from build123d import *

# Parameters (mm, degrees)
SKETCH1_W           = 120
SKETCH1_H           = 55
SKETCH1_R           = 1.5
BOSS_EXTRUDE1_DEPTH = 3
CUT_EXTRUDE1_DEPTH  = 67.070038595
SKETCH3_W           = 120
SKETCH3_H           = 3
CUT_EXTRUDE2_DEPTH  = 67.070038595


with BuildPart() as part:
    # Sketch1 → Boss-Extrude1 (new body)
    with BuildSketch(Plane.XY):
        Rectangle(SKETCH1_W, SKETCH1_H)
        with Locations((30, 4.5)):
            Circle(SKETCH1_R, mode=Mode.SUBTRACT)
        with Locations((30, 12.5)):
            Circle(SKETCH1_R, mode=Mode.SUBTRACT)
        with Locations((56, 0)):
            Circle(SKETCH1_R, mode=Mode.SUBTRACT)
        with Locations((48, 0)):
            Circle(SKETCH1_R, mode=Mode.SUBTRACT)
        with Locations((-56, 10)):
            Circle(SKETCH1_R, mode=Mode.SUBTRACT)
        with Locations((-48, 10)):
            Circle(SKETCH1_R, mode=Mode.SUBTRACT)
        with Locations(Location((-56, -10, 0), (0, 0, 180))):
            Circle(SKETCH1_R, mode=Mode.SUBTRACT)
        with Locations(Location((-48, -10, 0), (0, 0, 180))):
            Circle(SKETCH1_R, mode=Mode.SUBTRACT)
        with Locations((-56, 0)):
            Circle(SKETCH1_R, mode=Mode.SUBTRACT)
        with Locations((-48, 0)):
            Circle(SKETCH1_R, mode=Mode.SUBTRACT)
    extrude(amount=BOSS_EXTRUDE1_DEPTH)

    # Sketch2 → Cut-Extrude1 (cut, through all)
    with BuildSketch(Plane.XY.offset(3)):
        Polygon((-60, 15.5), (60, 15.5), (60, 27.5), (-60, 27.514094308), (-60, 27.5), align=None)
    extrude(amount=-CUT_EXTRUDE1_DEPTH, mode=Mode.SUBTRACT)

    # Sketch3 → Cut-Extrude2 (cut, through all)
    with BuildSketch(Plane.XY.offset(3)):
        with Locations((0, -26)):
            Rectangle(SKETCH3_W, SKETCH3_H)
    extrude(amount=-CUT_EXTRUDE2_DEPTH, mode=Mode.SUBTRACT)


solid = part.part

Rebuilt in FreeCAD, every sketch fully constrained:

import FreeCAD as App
import Part
import Sketcher
from FreeCAD import Vector


def add_polygon(sketch, points):
    """Adds a closed chain of lines whose ends are joined by coincident constraints."""
    first, n = sketch.GeometryCount, len(points)
    for a, b in zip(points, points[1:] + points[:1]):
        sketch.addGeometry(Part.LineSegment(App.Vector(*a, 0), App.Vector(*b, 0)), False)
    for i in range(n):
        sketch.addConstraint(Sketcher.Constraint("Coincident", first + i, 2, first + (i + 1) % n, 1))

doc = App.newDocument("Part")
body = doc.addObject("PartDesign::Body", "Body")

sketch1 = doc.addObject("Sketcher::SketchObject", "Sketch")
body.addObject(sketch1)
sketch1.AttachmentSupport = (doc.XY_Plane, [""])
sketch1.MapMode = "FlatFace"
add_polygon(sketch1, [(-60, 27.5), (-60, -27.5), (60, -27.5), (60, 27.5)])
sketch1.addGeometry(Part.Circle(Vector(-56, -10, 0), Vector(0, 0, 1), 1.5), False)
sketch1.addGeometry(Part.Circle(Vector(-48, -10, 0), Vector(0, 0, 1), 1.5), False)
sketch1.addGeometry(Part.Circle(Vector(-56, 0, 0), Vector(0, 0, 1), 1.5), False)
sketch1.addGeometry(Part.Circle(Vector(-48, 0, 0), Vector(0, 0, 1), 1.5), False)
sketch1.addGeometry(Part.Circle(Vector(48, 0, 0), Vector(0, 0, 1), 1.5), False)
sketch1.addGeometry(Part.Circle(Vector(56, 0, 0), Vector(0, 0, 1), 1.5), False)
sketch1.addGeometry(Part.Circle(Vector(-56, 10, 0), Vector(0, 0, 1), 1.5), False)
sketch1.addGeometry(Part.Circle(Vector(-48, 10, 0), Vector(0, 0, 1), 1.5), False)
sketch1.addGeometry(Part.Circle(Vector(30, 4.5, 0), Vector(0, 0, 1), 1.5), False)
sketch1.addGeometry(Part.Circle(Vector(30, 12.5, 0), Vector(0, 0, 1), 1.5), False)
sketch1.addConstraint([
    Sketcher.Constraint("Vertical", 0),
    Sketcher.Constraint("Horizontal", 1),
    Sketcher.Constraint("Vertical", 2),
    Sketcher.Constraint("Horizontal", 3),
    Sketcher.Constraint("Equal", 4, 5),
    Sketcher.Constraint("Equal", 5, 6),
    Sketcher.Constraint("Equal", 6, 7),
    Sketcher.Constraint("Equal", 7, 8),
    Sketcher.Constraint("Equal", 8, 9),
    Sketcher.Constraint("Equal", 9, 10),
    Sketcher.Constraint("Equal", 10, 11),
    Sketcher.Constraint("Equal", 11, 12),
    Sketcher.Constraint("Equal", 12, 13),
    Sketcher.Constraint("Symmetric", 7, 3, 8, 3, -1, 1),
    Sketcher.Constraint("Symmetric", 6, 3, 9, 3, -1, 1),
    Sketcher.Constraint("Symmetric", 0, 2, 2, 2, -1, 1),
    Sketcher.Constraint("Symmetric", 4, 3, 10, 3, -1),
    Sketcher.Constraint("Symmetric", 5, 3, 11, 3, -1),
    Sketcher.Constraint("PointOnObject", 6, 3, -1),
    Sketcher.Constraint("PointOnObject", 7, 3, -1),
    Sketcher.Constraint("Horizontal", 4, 3, 5, 3),
    Sketcher.Constraint("Vertical", 4, 3, 6, 3),
    Sketcher.Constraint("Vertical", 5, 3, 7, 3),
    Sketcher.Constraint("Vertical", 12, 3, 13, 3),
    Sketcher.Constraint("Diameter", 4, 3.0),
    Sketcher.Constraint("DistanceX", 1, 1, 1, 2, 120.0),
    Sketcher.Constraint("DistanceY", 0, 2, 0, 1, 55.0),
    Sketcher.Constraint("DistanceX", 4, 3, -1, 1, 56.0),
    Sketcher.Constraint("DistanceY", 4, 3, -1, 1, 10.0),
    Sketcher.Constraint("DistanceX", 5, 3, -1, 1, 48.0),
    Sketcher.Constraint("DistanceX", -1, 1, 12, 3, 30.0),
    Sketcher.Constraint("DistanceY", 12, 3, 13, 3, 8.0),
    Sketcher.Constraint("DistanceY", 1, 2, 12, 3, 32.0),
])
pad1 = doc.addObject("PartDesign::Pad", "Pad")
body.addObject(pad1)
pad1.Profile = sketch1
pad1.Length = 3

sketch2 = doc.addObject("Sketcher::SketchObject", "Sketch001")
body.addObject(sketch2)
sketch2.AttachmentSupport = (doc.XY_Plane, [""])
sketch2.MapMode = "FlatFace"
sketch2.AttachmentOffset = App.Placement(Vector(0, 0, 3), App.Rotation())
add_polygon(sketch2, [(-60, 16), (60, 16), (60, 28), (-60, 28)])
sketch2.addConstraint([
    Sketcher.Constraint("Horizontal", 0),
    Sketcher.Constraint("Vertical", 1),
    Sketcher.Constraint("Vertical", 3),
    Sketcher.Constraint("DistanceX", 0, 1, 0, 2, 120.0),
    Sketcher.Constraint("DistanceY", 1, 1, 1, 2, 12.0),
    Sketcher.Constraint("DistanceX", -1, 1, 0, 2, 60.0),
    Sketcher.Constraint("DistanceY", -1, 1, 0, 2, 15.5),
    Sketcher.Constraint("DistanceY", 3, 2, 3, 1, 12.014094),
])
pocket1 = doc.addObject("PartDesign::Pocket", "Pocket")
body.addObject(pocket1)
pocket1.Profile = sketch2
pocket1.Type = "ThroughAll"

sketch3 = doc.addObject("Sketcher::SketchObject", "Sketch002")
body.addObject(sketch3)
sketch3.AttachmentSupport = (doc.XY_Plane, [""])
sketch3.MapMode = "FlatFace"
sketch3.AttachmentOffset = App.Placement(Vector(0, 0, 3), App.Rotation())
add_polygon(sketch3, [(-60, -24.5), (-60, -27.5), (60, -27.5), (60, -24.5)])
sketch3.addConstraint([
    Sketcher.Constraint("Vertical", 0),
    Sketcher.Constraint("Horizontal", 1),
    Sketcher.Constraint("Vertical", 2),
    Sketcher.Constraint("Horizontal", 3),
    Sketcher.Constraint("DistanceX", 1, 1, 1, 2, 120.0),
    Sketcher.Constraint("DistanceY", 0, 2, 0, 1, 3.0),
    Sketcher.Constraint("DistanceX", 0, 2, -1, 1, 60.0),
    Sketcher.Constraint("DistanceY", 0, 2, -1, 1, 27.5),
])
pocket2 = doc.addObject("PartDesign::Pocket", "Pocket001")
body.addObject(pocket2)
pocket2.Profile = sketch3
pocket2.Type = "ThroughAll"

doc.recompute()
